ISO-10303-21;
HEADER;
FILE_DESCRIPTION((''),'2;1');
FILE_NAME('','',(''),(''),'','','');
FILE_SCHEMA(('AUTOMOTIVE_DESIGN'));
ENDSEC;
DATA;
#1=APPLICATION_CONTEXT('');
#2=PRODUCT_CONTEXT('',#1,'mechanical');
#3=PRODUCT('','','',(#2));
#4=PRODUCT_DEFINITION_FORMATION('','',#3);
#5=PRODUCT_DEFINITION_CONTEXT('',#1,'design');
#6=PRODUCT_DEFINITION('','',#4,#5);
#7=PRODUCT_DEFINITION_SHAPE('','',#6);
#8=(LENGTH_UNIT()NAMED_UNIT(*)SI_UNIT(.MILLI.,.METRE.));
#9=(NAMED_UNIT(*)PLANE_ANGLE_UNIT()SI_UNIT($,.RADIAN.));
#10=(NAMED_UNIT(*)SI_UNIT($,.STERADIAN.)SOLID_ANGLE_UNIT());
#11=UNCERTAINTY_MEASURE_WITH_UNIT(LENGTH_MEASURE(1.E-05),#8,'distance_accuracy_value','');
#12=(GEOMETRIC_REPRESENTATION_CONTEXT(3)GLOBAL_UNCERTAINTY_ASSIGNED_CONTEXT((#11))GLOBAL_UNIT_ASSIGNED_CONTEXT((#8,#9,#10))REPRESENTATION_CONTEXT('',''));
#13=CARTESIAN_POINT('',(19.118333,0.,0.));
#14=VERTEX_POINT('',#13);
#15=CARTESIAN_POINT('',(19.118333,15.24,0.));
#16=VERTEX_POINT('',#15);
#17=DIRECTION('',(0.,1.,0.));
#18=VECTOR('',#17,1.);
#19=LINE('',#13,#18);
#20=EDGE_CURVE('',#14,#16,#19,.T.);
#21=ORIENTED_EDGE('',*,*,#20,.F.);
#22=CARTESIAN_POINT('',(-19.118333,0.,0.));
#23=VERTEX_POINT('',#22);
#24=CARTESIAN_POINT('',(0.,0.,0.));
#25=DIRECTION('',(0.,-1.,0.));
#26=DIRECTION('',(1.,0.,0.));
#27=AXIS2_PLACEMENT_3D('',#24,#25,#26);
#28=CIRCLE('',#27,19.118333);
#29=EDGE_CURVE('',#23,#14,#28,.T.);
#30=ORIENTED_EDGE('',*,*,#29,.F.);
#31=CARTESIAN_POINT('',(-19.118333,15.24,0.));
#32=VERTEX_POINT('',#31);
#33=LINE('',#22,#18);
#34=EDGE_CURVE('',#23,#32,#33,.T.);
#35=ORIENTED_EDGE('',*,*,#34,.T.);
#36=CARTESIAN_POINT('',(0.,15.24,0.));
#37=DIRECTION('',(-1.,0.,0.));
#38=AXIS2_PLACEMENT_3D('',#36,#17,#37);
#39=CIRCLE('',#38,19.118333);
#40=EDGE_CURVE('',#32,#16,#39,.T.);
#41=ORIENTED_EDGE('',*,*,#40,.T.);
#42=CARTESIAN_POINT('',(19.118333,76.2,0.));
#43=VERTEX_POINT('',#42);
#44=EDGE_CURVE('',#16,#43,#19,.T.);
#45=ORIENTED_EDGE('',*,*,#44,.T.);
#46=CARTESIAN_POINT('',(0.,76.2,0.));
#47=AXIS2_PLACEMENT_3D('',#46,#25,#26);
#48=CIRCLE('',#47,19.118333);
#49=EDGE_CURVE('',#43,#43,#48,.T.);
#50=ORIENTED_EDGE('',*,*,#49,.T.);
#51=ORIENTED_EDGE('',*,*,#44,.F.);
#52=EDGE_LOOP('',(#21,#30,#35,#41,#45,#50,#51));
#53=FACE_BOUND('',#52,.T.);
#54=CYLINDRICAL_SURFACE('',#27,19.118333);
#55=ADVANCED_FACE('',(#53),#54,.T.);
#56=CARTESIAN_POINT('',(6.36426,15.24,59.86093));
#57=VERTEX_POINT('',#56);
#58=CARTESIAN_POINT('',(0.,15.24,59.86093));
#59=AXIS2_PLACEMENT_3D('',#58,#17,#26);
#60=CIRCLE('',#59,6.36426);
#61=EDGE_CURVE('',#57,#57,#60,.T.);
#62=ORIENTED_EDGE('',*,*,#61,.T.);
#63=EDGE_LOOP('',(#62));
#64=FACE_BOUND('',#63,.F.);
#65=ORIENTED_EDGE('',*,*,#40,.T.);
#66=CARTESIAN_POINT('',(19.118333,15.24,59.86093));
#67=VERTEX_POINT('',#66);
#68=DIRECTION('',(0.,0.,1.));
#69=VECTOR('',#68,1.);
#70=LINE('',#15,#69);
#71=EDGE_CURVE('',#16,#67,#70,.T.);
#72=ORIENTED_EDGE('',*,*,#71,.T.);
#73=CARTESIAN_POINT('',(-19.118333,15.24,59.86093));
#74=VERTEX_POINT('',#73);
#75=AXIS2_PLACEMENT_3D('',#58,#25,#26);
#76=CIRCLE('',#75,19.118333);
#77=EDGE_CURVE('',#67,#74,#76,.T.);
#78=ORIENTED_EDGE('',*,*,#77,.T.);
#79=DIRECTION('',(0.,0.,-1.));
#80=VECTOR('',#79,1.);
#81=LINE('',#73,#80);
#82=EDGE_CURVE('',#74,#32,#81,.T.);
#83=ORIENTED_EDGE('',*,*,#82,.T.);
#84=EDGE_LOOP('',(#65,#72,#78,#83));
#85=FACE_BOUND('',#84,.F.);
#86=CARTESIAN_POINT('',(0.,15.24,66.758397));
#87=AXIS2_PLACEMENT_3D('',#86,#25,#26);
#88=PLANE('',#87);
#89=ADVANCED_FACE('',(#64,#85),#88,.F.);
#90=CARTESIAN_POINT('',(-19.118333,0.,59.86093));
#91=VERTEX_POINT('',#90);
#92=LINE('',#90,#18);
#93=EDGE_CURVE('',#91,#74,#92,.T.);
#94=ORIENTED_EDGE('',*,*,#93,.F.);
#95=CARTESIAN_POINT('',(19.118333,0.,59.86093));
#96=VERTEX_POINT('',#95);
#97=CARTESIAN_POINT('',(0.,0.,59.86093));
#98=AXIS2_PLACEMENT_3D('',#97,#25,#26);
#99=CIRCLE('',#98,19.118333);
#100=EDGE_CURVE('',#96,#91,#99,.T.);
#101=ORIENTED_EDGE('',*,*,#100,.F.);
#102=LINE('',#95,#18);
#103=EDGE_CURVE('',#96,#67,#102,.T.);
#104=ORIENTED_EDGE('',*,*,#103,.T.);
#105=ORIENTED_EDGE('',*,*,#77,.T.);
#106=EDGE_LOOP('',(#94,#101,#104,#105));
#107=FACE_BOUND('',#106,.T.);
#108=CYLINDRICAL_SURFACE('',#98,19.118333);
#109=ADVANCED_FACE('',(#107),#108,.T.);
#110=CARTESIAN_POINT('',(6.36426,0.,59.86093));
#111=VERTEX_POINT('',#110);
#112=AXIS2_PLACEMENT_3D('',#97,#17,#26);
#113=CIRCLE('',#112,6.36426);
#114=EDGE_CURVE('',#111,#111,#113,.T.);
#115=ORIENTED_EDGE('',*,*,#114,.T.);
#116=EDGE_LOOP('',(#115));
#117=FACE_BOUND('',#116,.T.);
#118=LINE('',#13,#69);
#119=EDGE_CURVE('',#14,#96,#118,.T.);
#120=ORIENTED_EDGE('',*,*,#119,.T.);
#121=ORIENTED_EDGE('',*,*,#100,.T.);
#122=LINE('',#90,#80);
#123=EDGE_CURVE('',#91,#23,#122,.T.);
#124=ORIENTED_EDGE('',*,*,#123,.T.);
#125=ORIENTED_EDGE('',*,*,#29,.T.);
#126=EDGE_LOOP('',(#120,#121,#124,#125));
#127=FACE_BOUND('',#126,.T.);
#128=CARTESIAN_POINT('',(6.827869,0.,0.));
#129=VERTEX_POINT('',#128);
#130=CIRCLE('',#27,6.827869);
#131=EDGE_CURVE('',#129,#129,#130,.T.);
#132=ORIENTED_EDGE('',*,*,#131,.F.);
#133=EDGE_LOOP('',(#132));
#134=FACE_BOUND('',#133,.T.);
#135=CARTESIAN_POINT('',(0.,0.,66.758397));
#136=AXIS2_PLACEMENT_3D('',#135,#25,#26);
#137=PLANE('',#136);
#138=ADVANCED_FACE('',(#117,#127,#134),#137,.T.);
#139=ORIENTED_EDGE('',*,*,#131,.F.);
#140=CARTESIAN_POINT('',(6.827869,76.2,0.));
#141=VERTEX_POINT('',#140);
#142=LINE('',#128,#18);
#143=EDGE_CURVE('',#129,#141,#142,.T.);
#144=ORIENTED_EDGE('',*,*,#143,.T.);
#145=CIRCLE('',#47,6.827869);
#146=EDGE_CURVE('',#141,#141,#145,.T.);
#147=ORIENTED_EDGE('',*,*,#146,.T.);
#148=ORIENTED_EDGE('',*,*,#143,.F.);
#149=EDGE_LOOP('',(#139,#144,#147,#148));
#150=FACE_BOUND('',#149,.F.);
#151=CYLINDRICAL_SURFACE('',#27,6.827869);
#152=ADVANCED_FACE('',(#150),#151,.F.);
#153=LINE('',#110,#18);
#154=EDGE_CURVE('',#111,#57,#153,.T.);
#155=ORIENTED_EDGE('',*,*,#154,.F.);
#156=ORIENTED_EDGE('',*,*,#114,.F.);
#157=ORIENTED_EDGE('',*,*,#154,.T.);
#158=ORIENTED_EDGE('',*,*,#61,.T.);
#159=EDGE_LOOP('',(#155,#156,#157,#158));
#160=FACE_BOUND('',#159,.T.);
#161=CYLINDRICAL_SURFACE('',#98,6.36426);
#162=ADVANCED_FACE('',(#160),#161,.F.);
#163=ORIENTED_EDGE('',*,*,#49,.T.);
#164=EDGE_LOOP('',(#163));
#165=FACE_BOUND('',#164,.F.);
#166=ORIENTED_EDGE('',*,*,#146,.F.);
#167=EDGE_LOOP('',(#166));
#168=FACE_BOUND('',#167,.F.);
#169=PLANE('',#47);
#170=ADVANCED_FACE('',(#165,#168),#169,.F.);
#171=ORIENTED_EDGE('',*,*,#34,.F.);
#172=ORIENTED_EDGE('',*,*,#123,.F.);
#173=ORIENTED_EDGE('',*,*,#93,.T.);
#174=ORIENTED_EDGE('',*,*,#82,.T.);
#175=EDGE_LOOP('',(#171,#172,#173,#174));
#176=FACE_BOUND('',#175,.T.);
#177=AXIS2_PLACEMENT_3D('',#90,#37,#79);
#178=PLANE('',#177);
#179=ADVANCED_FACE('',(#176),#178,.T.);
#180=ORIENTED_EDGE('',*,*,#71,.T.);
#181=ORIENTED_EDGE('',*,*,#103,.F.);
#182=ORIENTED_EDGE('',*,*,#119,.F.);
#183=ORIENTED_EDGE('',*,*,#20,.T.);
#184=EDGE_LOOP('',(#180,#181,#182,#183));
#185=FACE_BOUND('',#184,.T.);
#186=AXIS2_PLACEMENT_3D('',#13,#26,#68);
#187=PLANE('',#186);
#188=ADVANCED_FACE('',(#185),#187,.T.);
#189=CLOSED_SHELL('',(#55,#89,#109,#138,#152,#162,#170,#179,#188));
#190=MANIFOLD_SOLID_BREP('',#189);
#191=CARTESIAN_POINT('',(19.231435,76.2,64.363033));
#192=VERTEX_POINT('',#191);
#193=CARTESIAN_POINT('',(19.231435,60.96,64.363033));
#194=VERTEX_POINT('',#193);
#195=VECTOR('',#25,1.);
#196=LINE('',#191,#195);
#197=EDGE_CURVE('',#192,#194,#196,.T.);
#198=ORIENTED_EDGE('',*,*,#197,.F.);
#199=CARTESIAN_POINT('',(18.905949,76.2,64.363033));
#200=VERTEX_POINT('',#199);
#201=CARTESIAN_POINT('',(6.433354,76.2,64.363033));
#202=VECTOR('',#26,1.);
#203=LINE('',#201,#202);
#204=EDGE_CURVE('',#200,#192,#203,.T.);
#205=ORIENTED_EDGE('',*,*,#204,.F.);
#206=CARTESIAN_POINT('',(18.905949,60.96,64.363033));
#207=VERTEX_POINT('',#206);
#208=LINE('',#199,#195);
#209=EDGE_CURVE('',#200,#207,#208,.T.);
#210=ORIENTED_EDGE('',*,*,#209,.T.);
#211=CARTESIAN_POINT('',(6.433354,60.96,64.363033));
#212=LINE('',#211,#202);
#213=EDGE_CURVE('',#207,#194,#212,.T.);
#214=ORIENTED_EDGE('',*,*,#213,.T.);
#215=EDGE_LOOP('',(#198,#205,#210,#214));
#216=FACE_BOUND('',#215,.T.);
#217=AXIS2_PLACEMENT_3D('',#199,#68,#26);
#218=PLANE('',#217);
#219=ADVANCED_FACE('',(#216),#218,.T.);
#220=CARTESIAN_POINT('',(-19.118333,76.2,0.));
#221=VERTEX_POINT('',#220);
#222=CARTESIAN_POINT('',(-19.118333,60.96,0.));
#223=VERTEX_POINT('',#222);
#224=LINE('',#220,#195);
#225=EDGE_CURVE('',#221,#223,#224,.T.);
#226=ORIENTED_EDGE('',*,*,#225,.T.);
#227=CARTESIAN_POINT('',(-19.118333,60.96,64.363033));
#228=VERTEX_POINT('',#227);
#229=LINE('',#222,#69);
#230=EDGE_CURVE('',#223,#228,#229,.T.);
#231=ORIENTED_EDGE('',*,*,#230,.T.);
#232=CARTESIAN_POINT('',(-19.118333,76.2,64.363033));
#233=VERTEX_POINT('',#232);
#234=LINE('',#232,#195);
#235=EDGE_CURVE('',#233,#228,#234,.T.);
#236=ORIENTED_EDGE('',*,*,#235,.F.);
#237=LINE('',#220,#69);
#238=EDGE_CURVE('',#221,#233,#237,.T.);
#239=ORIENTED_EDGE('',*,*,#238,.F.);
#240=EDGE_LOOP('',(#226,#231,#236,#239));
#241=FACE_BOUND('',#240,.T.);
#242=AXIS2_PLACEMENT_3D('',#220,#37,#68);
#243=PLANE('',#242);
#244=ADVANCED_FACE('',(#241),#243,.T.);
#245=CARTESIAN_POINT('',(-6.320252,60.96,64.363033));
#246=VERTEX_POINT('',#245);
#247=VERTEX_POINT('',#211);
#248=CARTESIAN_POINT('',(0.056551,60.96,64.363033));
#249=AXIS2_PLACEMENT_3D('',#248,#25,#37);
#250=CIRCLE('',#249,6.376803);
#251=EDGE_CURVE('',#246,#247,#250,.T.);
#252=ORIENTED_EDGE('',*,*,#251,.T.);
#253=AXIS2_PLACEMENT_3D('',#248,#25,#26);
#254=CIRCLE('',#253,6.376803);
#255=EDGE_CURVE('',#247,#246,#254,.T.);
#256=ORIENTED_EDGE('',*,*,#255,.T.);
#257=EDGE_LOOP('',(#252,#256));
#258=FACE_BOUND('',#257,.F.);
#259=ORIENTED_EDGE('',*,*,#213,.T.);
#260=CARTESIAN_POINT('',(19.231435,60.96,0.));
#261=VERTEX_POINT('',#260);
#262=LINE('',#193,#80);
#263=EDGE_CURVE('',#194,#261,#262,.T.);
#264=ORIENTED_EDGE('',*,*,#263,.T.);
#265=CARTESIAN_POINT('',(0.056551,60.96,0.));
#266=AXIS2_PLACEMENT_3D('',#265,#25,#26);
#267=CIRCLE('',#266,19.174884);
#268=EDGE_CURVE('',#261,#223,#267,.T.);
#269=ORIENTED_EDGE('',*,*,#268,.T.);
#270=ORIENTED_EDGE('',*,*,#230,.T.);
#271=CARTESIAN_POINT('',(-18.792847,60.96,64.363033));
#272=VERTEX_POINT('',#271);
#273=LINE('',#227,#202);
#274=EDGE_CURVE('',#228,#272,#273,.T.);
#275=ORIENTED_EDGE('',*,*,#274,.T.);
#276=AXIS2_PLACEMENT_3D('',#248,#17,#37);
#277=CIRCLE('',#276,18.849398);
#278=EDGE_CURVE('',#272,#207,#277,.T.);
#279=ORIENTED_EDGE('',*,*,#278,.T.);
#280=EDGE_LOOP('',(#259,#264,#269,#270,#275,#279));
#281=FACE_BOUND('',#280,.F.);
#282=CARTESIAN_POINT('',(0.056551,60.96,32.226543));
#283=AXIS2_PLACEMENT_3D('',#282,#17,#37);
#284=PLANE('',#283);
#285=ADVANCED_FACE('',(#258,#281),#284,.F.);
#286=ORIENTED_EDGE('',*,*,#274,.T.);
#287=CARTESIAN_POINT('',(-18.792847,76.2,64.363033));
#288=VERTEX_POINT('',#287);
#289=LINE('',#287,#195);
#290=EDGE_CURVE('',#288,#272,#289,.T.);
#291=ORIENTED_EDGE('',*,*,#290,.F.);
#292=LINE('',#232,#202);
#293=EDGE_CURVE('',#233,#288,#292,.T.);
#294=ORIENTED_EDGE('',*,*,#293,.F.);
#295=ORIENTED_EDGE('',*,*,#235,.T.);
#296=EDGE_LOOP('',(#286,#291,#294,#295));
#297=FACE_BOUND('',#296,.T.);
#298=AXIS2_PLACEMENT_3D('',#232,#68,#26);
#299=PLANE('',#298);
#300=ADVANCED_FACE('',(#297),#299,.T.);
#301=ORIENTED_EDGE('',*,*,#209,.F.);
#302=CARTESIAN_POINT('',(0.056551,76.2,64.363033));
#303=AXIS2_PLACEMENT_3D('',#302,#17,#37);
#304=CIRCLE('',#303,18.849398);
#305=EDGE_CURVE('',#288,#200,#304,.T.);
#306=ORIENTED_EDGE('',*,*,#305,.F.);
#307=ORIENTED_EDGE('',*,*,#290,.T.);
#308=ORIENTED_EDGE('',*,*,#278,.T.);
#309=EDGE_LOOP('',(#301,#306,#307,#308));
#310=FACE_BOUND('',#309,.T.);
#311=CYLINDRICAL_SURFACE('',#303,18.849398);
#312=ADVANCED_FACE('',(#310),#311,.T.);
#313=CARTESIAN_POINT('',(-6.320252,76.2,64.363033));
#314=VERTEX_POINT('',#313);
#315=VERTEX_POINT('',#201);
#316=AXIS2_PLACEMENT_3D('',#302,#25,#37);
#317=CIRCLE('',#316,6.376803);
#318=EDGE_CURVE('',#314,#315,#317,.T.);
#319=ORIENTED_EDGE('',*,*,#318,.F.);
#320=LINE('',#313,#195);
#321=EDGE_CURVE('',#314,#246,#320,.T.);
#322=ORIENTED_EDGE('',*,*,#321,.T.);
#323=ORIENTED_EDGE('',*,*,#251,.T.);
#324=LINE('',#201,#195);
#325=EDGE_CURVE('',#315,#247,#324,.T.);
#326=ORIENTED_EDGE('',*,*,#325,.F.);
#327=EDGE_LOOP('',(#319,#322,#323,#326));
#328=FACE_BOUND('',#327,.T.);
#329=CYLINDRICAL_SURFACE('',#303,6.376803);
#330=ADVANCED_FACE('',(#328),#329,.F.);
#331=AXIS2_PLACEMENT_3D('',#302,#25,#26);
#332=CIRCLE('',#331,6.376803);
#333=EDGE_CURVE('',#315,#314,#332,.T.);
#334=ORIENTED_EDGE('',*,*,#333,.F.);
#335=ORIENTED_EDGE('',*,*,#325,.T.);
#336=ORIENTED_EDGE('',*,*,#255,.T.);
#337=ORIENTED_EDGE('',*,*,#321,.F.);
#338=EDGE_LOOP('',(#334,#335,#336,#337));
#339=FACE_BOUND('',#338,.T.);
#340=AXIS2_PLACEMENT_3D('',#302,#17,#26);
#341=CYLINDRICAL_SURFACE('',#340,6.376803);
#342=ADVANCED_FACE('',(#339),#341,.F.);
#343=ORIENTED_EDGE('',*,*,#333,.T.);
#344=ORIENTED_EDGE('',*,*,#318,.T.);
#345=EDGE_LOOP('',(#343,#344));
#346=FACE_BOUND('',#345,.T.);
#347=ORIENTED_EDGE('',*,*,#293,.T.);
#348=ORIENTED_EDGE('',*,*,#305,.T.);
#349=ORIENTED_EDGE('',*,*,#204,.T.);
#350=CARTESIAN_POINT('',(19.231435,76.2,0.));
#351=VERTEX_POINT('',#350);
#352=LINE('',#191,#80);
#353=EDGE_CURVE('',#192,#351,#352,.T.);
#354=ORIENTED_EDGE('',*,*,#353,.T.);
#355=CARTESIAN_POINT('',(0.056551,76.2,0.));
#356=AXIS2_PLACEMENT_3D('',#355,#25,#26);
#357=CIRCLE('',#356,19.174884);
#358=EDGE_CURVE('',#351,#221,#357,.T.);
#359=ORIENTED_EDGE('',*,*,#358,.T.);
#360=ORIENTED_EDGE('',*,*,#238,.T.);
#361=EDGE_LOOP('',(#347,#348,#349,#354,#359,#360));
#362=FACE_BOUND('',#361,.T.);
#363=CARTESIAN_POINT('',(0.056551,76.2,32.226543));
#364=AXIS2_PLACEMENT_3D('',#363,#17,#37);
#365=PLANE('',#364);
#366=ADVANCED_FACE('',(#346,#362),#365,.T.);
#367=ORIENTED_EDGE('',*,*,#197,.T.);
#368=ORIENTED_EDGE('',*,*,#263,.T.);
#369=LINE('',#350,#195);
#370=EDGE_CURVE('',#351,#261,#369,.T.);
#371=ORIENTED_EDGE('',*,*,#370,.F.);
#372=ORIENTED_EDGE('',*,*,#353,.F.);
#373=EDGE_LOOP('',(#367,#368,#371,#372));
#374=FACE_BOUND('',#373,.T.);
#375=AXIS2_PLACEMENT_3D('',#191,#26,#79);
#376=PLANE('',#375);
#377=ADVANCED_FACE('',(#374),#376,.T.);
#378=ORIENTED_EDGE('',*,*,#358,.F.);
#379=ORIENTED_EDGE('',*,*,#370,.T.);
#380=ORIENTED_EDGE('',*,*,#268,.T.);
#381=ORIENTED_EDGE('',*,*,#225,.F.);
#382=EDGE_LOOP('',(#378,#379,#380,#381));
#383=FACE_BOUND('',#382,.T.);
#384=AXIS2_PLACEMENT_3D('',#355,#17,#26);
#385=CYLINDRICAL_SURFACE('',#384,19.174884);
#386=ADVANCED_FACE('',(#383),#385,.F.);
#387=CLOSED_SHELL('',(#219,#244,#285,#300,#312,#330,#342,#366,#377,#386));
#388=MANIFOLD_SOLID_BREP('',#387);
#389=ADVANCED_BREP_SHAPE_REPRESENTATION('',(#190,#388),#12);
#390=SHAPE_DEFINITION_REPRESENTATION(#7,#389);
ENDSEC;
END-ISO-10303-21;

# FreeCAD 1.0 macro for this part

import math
import FreeCAD as App
import Part
import Sketcher
Q = App.Units.Quantity

doc = App.newDocument("Part")
body = doc.addObject("PartDesign::Body", "Body")

# Sketch on XZ plane
sketch1 = body.newObject("Sketcher::SketchObject", "Sketch")
sketch1.AttachmentSupport = (doc.getObject("XZ_Plane"), [""])
sketch1.MapMode = "FlatFace"
sketch1.addGeometry(Part.Circle(App.Vector(0, 0, 0), App.Vector(0, 0, 1), 19), False)
sketch1.addGeometry(Part.Circle(App.Vector(0, 0, 0), App.Vector(0, 0, 1), 7), False)
sketch1.addConstraint(Sketcher.Constraint("Coincident", 0, 3, -1, 1))
sketch1.addConstraint(Sketcher.Constraint("Coincident", 1, 3, -1, 1))
sketch1.addConstraint(Sketcher.Constraint("Diameter", 0, 38.236666))
sketch1.addConstraint(Sketcher.Constraint("Diameter", 1, 13.655737))
pad1 = body.newObject("PartDesign::Pad", "Pad")
pad1.Profile = sketch1
pad1.Length = Q("3 in")
pad1.Reversed = True

# Sketch on XZ plane
sketch2 = body.newObject("Sketcher::SketchObject", "Sketch001")
sketch2.AttachmentSupport = (doc.getObject("XZ_Plane"), [""])
sketch2.MapMode = "FlatFace"
sketch2.addGeometry(Part.ArcOfCircle(Part.Circle(App.Vector(0, 60, 0), App.Vector(0, 0, 1), 19), math.radians(0), math.radians(180)), False)
sketch2.addGeometry(Part.LineSegment(App.Vector(-19, 60, 0), App.Vector(-19, 0, 0)), False)
sketch2.addGeometry(Part.ArcOfCircle(Part.Circle(App.Vector(0, 0, 0), App.Vector(0, 0, 1), 19), math.radians(0), math.radians(180)), False)
sketch2.addGeometry(Part.LineSegment(App.Vector(19, 0, 0), App.Vector(19, 60, 0)), False)
sketch2.addGeometry(Part.Circle(App.Vector(0, 60, 0), App.Vector(0, 0, 1), 6), False)
sketch2.addConstraint(Sketcher.Constraint("Tangent", 0, 2, 1, 1))
sketch2.addConstraint(Sketcher.Constraint("Tangent", 1, 2, 2, 2))
sketch2.addConstraint(Sketcher.Constraint("Tangent", 2, 1, 3, 1))
sketch2.addConstraint(Sketcher.Constraint("Tangent", 3, 2, 0, 1))
sketch2.addConstraint(Sketcher.Constraint("Vertical", 1))
sketch2.addConstraint(Sketcher.Constraint("Vertical", 3))
sketch2.addConstraint(Sketcher.Constraint("Coincident", 2, 3, -1, 1))
sketch2.addConstraint(Sketcher.Constraint("Coincident", 4, 3, 0, 3))
sketch2.addConstraint(Sketcher.Constraint("Diameter", 4, 12.728519))
sketch2.addConstraint(Sketcher.Constraint("Radius", 0, 19.118333))
sketch2.addConstraint(Sketcher.Constraint("DistanceY", 1, 2, 1, 1, 59.86093))
pad2 = body.newObject("PartDesign::Pad", "Pad001")
pad2.Profile = sketch2
pad2.Length = Q("0.6 in")
pad2.Reversed = True
body2 = doc.addObject("PartDesign::Body", "Body001")

# Sketch on XZ plane
sketch3 = body2.newObject("Sketcher::SketchObject", "Sketch002")
sketch3.AttachmentSupport = (doc.getObject("XZ_Plane001"), [""])
sketch3.MapMode = "FlatFace"
sketch3.AttachmentOffset = App.Placement(App.Vector(0, 0, -3 * 25.4), App.Rotation())
sketch3.addGeometry(Part.LineSegment(App.Vector(-19.12, 0, 0), App.Vector(-19.12, 64.36, 0)), False)
sketch3.addGeometry(Part.LineSegment(App.Vector(-19.12, 64.36, 0), App.Vector(-18.79, 64.36, 0)), False)
sketch3.addGeometry(Part.ArcOfCircle(Part.Circle(App.Vector(0.06, 64.36, 0), App.Vector(0, 0, 1), 18.85), math.radians(0), math.radians(180)), False)
sketch3.addGeometry(Part.LineSegment(App.Vector(18.91, 64.36, 0), App.Vector(19.23, 64.36, 0)), False)
sketch3.addGeometry(Part.LineSegment(App.Vector(19.23, 64.36, 0), App.Vector(19.23, 0, 0)), False)
sketch3.addGeometry(Part.ArcOfCircle(Part.Circle(App.Vector(0.06, 0, 0), App.Vector(0, 0, 1), 19.17), math.radians(0), math.radians(180)), False)
sketch3.addGeometry(Part.ArcOfCircle(Part.Circle(App.Vector(0.06, 64.36, 0), App.Vector(0, 0, 1), 6.38), math.radians(180), math.radians(360)), False)
sketch3.addGeometry(Part.ArcOfCircle(Part.Circle(App.Vector(0.06, 64.36, 0), App.Vector(0, 0, 1), 6.38), math.radians(0), math.radians(180)), False)
sketch3.addConstraint(Sketcher.Constraint("Coincident", 0, 2, 1, 1))
sketch3.addConstraint(Sketcher.Constraint("Coincident", 1, 2, 2, 2))
sketch3.addConstraint(Sketcher.Constraint("Coincident", 2, 1, 3, 1))
sketch3.addConstraint(Sketcher.Constraint("Coincident", 3, 2, 4, 1))
sketch3.addConstraint(Sketcher.Constraint("Tangent", 4, 2, 5, 1))
sketch3.addConstraint(Sketcher.Constraint("Tangent", 5, 2, 0, 1))
sketch3.addConstraint(Sketcher.Constraint("Tangent", 6, 1, 7, 2))
sketch3.addConstraint(Sketcher.Constraint("Coincident", 7, 1, 6, 2))
sketch3.addConstraint(Sketcher.Constraint("Vertical", 0))
sketch3.addConstraint(Sketcher.Constraint("Horizontal", 1))
sketch3.addConstraint(Sketcher.Constraint("Horizontal", 3))
sketch3.addConstraint(Sketcher.Constraint("Vertical", 4))
sketch3.addConstraint(Sketcher.Constraint("Coincident", 6, 3, 2, 3))
sketch3.addConstraint(Sketcher.Constraint("PointOnObject", 5, 3, -1))
sketch3.addConstraint(Sketcher.Constraint("Horizontal", 7, 3, 0, 2))
sketch3.addConstraint(Sketcher.Constraint("Horizontal", 1, 2, 2, 1))
sketch3.addConstraint(Sketcher.Constraint("Horizontal", 3, 2, 6, 1))
sketch3.addConstraint(Sketcher.Constraint("Horizontal", 6, 1, 7, 1))
sketch3.addConstraint(Sketcher.Constraint("Vertical", 2, 3, 5, 3))
sketch3.addConstraint(Sketcher.Constraint("Radius", 2, 18.849398))
sketch3.addConstraint(Sketcher.Constraint("Radius", 5, 19.174884))
sketch3.addConstraint(Sketcher.Constraint("Radius", 6, 6.376803))
sketch3.addConstraint(Sketcher.Constraint("DistanceY", 0, 1, 0, 2, 64.363033))
sketch3.addConstraint(Sketcher.Constraint("DistanceX", -1, 1, 2, 3, 0.056551))
pad3 = body2.newObject("PartDesign::Pad", "Pad002")
pad3.Profile = sketch3
pad3.Length = Q("0.6 in")

doc.recompute()
